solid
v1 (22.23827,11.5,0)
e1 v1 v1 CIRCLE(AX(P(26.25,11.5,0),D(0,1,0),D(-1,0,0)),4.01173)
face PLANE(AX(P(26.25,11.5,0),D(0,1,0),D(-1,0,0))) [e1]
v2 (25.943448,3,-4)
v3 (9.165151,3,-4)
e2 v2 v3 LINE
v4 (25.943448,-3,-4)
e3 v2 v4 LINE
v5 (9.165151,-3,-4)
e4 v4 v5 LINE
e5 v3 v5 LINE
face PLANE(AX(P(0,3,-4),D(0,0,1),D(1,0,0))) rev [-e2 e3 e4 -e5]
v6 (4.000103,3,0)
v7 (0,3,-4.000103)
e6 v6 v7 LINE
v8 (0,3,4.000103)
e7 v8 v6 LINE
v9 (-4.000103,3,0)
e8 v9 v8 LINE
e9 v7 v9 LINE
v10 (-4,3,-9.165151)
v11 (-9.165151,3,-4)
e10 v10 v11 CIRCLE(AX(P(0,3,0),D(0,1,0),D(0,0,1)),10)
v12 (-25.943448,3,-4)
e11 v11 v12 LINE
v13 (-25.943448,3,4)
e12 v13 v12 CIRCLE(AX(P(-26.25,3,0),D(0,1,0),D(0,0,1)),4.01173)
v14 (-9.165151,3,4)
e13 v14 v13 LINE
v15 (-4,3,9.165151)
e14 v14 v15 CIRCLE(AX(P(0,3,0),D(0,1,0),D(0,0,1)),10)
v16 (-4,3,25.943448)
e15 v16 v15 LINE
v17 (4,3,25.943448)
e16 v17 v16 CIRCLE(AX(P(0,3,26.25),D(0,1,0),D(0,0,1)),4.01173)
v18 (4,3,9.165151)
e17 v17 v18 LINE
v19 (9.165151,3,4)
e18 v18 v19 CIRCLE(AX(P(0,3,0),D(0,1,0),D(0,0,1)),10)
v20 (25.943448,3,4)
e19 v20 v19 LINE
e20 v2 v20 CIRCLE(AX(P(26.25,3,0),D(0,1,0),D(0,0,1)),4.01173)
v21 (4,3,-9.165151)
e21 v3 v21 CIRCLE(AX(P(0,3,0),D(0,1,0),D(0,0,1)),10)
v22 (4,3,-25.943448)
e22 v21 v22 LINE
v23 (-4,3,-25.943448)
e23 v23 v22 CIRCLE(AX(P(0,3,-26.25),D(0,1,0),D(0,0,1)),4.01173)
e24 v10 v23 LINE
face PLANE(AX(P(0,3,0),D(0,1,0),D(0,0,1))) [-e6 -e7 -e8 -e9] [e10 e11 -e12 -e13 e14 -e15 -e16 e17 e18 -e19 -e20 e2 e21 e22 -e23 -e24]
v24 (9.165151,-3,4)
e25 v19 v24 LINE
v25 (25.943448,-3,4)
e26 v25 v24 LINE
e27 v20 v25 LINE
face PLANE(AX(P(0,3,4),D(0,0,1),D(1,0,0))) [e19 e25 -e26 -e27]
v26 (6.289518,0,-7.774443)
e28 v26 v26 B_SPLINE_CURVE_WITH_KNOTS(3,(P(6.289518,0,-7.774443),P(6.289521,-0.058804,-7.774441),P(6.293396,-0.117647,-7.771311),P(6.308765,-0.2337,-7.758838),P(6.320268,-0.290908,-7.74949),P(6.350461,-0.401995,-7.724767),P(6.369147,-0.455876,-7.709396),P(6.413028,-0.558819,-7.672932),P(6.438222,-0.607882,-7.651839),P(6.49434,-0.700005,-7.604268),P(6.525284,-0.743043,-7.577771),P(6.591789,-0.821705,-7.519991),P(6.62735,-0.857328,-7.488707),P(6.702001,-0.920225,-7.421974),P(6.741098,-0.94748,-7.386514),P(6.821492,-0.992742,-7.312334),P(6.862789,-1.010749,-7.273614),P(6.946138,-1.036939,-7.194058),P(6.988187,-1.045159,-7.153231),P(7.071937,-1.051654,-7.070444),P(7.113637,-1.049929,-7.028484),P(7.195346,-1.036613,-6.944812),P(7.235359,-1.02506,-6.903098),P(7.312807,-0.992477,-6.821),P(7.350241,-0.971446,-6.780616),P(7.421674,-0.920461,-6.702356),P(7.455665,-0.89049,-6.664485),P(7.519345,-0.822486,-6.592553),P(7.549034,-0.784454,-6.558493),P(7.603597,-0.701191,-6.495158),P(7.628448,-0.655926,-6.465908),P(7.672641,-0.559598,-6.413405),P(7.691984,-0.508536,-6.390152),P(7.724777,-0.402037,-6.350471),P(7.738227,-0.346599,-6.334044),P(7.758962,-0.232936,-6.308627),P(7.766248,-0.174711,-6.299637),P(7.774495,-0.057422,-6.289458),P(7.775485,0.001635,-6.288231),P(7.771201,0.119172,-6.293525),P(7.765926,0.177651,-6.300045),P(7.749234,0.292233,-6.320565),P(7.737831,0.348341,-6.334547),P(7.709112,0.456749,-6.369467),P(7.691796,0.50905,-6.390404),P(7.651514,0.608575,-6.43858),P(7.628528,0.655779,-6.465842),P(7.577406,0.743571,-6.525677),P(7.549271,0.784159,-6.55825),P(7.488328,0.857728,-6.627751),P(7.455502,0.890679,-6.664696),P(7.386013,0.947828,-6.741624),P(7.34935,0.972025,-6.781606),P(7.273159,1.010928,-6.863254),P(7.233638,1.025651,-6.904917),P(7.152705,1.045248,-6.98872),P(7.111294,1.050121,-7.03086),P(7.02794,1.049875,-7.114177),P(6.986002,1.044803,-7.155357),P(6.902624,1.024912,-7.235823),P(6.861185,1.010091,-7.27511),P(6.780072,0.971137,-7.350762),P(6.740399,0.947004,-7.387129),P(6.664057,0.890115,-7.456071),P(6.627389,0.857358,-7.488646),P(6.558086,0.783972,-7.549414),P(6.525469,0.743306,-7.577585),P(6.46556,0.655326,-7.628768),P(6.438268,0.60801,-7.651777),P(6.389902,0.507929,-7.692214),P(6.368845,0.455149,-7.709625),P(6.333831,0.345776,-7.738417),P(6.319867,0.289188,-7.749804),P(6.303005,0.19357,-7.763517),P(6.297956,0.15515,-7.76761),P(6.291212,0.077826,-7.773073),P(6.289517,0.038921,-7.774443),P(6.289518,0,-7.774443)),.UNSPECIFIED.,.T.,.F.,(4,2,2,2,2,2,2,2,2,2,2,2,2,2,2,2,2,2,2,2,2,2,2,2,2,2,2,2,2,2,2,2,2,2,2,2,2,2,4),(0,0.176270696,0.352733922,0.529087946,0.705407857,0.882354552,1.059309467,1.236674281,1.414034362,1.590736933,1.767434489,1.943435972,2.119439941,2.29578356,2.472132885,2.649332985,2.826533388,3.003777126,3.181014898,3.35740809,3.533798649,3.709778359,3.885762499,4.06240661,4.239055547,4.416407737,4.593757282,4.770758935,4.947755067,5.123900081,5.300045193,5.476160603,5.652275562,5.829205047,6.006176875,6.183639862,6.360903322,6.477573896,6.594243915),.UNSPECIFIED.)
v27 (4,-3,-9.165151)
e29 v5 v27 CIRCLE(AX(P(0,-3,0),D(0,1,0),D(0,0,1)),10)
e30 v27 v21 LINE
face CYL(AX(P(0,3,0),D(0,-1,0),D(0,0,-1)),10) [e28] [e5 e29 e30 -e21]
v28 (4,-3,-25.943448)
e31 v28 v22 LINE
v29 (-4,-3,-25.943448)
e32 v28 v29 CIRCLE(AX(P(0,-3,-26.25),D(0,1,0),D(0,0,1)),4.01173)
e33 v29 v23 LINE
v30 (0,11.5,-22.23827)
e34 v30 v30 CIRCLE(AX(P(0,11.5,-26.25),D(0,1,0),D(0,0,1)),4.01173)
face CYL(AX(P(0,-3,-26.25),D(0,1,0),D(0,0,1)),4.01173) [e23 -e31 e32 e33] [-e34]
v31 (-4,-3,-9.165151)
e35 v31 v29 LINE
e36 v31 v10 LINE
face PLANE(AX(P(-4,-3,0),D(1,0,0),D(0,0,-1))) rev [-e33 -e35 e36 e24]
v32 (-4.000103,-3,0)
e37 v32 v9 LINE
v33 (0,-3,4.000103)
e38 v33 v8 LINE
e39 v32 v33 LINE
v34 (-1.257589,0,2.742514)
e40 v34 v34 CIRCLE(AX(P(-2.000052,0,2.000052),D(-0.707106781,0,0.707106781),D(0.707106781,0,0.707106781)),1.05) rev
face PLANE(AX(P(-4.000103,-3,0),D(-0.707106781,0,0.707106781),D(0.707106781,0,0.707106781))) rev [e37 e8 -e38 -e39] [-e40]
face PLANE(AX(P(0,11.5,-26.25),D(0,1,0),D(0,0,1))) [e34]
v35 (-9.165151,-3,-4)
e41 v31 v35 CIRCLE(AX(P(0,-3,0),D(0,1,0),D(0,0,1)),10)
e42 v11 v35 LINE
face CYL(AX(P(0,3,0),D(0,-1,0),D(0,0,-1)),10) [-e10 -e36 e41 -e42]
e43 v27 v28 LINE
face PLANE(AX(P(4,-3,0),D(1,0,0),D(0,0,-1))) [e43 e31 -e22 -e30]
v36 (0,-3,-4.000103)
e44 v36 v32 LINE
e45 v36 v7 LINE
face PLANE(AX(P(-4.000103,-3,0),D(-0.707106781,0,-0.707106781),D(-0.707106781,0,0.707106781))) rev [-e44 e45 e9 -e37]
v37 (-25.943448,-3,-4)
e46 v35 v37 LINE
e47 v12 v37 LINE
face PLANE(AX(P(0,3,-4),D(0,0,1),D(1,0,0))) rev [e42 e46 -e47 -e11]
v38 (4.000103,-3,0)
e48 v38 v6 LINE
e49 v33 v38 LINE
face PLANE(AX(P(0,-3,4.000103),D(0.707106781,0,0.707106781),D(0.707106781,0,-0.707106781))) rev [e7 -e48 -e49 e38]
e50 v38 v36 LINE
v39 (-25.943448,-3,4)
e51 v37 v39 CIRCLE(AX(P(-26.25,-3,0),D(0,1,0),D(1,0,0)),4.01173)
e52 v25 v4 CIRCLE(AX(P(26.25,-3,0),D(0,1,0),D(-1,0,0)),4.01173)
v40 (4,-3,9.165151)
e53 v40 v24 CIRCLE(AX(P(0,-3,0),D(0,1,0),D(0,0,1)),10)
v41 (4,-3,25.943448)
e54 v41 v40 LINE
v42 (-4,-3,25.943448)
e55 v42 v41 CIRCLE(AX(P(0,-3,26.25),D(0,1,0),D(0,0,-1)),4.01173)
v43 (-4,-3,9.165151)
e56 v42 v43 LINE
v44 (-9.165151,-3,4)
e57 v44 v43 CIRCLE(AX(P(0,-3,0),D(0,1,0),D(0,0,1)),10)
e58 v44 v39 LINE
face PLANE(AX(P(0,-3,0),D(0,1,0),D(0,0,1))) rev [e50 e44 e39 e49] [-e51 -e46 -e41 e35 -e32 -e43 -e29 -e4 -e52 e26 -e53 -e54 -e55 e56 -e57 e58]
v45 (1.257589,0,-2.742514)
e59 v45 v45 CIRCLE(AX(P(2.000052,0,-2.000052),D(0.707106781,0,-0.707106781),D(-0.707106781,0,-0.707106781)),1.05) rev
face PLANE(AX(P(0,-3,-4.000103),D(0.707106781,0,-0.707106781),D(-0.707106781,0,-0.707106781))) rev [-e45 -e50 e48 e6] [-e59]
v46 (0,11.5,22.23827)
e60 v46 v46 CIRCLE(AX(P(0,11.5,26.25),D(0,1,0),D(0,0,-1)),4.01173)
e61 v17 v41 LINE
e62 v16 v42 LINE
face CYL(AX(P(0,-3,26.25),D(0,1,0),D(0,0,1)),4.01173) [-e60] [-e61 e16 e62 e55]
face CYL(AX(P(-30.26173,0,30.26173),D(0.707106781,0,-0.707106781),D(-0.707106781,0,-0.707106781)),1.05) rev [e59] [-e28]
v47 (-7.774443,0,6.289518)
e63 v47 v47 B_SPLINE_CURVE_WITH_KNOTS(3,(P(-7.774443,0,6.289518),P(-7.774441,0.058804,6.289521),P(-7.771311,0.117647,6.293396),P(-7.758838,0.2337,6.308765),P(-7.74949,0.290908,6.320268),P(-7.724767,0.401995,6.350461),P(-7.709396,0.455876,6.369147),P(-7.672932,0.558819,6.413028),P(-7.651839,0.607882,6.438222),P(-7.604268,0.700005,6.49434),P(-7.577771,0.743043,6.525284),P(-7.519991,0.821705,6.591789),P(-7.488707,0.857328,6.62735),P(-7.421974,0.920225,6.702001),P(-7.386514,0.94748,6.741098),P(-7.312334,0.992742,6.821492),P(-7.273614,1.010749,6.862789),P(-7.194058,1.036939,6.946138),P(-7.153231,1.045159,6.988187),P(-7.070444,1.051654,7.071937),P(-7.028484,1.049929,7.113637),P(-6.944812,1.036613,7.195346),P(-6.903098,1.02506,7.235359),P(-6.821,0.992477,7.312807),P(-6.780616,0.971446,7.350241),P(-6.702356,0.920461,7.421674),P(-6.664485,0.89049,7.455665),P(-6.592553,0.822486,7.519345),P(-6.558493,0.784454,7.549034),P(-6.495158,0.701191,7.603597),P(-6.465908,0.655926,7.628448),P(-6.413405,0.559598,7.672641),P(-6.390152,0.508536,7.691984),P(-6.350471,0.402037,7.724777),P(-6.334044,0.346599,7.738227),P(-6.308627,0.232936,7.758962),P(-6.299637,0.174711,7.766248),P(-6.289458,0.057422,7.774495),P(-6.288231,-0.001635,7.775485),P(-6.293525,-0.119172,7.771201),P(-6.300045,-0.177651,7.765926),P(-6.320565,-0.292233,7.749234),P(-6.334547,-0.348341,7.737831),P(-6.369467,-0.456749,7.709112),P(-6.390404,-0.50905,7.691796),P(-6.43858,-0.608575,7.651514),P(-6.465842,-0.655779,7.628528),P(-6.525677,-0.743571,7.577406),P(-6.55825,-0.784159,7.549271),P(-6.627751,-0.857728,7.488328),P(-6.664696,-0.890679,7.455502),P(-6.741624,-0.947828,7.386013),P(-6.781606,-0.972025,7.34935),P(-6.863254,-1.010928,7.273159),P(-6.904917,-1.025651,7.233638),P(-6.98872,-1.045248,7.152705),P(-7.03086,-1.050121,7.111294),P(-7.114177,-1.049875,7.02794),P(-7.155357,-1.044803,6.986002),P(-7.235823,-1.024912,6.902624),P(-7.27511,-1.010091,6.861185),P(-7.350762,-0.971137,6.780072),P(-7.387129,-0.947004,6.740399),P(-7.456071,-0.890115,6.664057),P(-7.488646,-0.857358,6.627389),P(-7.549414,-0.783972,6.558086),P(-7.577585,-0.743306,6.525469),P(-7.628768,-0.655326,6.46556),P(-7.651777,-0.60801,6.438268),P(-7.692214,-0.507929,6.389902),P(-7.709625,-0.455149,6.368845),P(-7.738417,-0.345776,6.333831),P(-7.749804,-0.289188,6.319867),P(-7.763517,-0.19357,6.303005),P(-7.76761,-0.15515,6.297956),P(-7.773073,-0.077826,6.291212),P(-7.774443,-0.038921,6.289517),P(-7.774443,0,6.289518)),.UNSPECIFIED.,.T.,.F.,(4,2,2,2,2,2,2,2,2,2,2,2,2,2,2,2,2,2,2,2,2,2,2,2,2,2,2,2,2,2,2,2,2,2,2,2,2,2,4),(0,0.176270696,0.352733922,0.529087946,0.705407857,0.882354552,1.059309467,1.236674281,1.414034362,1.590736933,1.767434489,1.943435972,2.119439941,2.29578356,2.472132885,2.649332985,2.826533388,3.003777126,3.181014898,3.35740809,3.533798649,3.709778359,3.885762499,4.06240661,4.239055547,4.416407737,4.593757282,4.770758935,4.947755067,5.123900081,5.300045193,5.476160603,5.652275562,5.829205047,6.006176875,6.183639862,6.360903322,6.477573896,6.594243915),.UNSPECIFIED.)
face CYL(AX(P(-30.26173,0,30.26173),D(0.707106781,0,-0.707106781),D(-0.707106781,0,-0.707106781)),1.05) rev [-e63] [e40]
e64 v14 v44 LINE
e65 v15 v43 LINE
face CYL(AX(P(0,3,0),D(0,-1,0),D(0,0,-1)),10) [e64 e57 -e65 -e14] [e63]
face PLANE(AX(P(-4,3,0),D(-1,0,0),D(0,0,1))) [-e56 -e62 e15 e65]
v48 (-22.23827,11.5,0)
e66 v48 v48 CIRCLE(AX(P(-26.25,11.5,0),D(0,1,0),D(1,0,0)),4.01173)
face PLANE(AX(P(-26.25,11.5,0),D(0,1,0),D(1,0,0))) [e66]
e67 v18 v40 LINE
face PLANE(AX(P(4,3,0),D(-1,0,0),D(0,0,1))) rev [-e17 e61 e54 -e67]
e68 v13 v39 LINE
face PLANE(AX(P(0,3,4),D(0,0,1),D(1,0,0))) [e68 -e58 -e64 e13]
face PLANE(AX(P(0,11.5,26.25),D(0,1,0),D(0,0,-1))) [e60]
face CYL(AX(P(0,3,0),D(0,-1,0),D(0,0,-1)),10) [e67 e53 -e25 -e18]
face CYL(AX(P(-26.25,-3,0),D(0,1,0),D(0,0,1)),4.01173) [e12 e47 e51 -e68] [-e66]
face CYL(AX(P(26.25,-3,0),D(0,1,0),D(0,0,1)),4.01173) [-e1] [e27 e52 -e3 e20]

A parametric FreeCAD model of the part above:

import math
import FreeCAD as App
import Part
import Sketcher

V = App.Vector
Q = App.Units.Quantity

doc = App.newDocument("Part")
params = doc.addObject("Spreadsheet::Sheet", "Params")
for row, (alias, value) in enumerate([
    ("sketch1_radius", "10 mm"),
    ("sketch1_radius2", "26.25 mm"),
    ("pad1_length", "3 mm"),
    ("pad1_length2", "3 mm"),
    ("pad2_length", "14.5 mm"),
    ("sketch3_diameter", "2.1 mm"),
], start=1):
    params.set(f"A{row}", alias)
    params.set(f"B{row}", "=" + value)
    params.setAlias(f"B{row}", alias)

body = doc.addObject("PartDesign::Body", "Body")

# Sketch on XZ plane
sketch1 = doc.addObject("Sketcher::SketchObject", "Sketch")
body.addObject(sketch1)
sketch1.AttachmentSupport = (doc.XZ_Plane, [""])
sketch1.MapMode = "FlatFace"
sketch1.addGeometry([
    Part.LineSegment(V(4, 26, 0), V(4, 9, 0)),  # 0
    Part.ArcOfCircle(Part.Circle(V(0, 0, 0), V(0, 0, 1), 10), math.radians(24), math.radians(66)),  # 1
    Part.LineSegment(V(9, 4, 0), V(26, 4, 0)),  # 2
    Part.ArcOfCircle(Part.Circle(V(0, 0, 0), V(0, 0, 1), 26), math.radians(-8.76), math.radians(8.76)),  # 3
    Part.LineSegment(V(26, -4, 0), V(9, -4, 0)),  # 4
    Part.ArcOfCircle(Part.Circle(V(0, 0, 0), V(0, 0, 1), 10), math.radians(-66), math.radians(-24)),  # 5
    Part.LineSegment(V(4, -9, 0), V(4, -26, 0)),  # 6
    Part.ArcOfCircle(Part.Circle(V(0, 0, 0), V(0, 0, 1), 26), math.radians(-98.76), math.radians(-81.24)),  # 7
    Part.LineSegment(V(-4, -26, 0), V(-4, -9, 0)),  # 8
    Part.ArcOfCircle(Part.Circle(V(0, 0, 0), V(0, 0, 1), 10), math.radians(-156), math.radians(-114)),  # 9
    Part.LineSegment(V(-9, -4, 0), V(-26, -4, 0)),  # 10
    Part.ArcOfCircle(Part.Circle(V(0, 0, 0), V(0, 0, 1), 26), math.radians(171.24), math.radians(188.76)),  # 11
    Part.LineSegment(V(-26, 4, 0), V(-9, 4, 0)),  # 12
    Part.ArcOfCircle(Part.Circle(V(0, 0, 0), V(0, 0, 1), 10), math.radians(114), math.radians(156)),  # 13
    Part.LineSegment(V(-4, 9, 0), V(-4, 26, 0)),  # 14
    Part.ArcOfCircle(Part.Circle(V(0, 0, 0), V(0, 0, 1), 26), math.radians(81.24), math.radians(98.76)),  # 15
], False)
sketch1.addConstraint([
    Sketcher.Constraint("Coincident", 0, 2, 1, 2),
    Sketcher.Constraint("Coincident", 1, 1, 2, 1),
    Sketcher.Constraint("Coincident", 2, 2, 3, 2),
    Sketcher.Constraint("Coincident", 3, 1, 4, 1),
    Sketcher.Constraint("Coincident", 4, 2, 5, 2),
    Sketcher.Constraint("Coincident", 5, 1, 6, 1),
    Sketcher.Constraint("Coincident", 6, 2, 7, 2),
    Sketcher.Constraint("Coincident", 7, 1, 8, 1),
    Sketcher.Constraint("Coincident", 8, 2, 9, 2),
    Sketcher.Constraint("Coincident", 9, 1, 10, 1),
    Sketcher.Constraint("Coincident", 10, 2, 11, 2),
    Sketcher.Constraint("Coincident", 11, 1, 12, 1),
    Sketcher.Constraint("Coincident", 12, 2, 13, 2),
    Sketcher.Constraint("Coincident", 13, 1, 14, 1),
    Sketcher.Constraint("Coincident", 14, 2, 15, 2),
    Sketcher.Constraint("Coincident", 15, 1, 0, 1),
    Sketcher.Constraint("Vertical", 0),
    Sketcher.Constraint("Horizontal", 2),
    Sketcher.Constraint("Horizontal", 4),
    Sketcher.Constraint("Vertical", 6),
    Sketcher.Constraint("Vertical", 8),
    Sketcher.Constraint("Horizontal", 10),
    Sketcher.Constraint("Horizontal", 12),
    Sketcher.Constraint("Vertical", 14),
    Sketcher.Constraint("Coincident", 1, 3, -1, 1),
    Sketcher.Constraint("Coincident", 3, 3, -1, 1),
    Sketcher.Constraint("Coincident", 5, 3, -1, 1),
    Sketcher.Constraint("Coincident", 7, 3, -1, 1),
    Sketcher.Constraint("Coincident", 9, 3, -1, 1),
    Sketcher.Constraint("Coincident", 11, 3, -1, 1),
    Sketcher.Constraint("Coincident", 13, 3, -1, 1),
    Sketcher.Constraint("Coincident", 15, 3, -1, 1),
    Sketcher.Constraint("Equal", 1, 5),
    Sketcher.Constraint("Equal", 3, 7),
    Sketcher.Constraint("Equal", 5, 9),
    Sketcher.Constraint("Equal", 7, 11),
    Sketcher.Constraint("Equal", 9, 13),
    Sketcher.Constraint("Equal", 11, 15),
    Sketcher.Constraint("Horizontal", 6, 2, 7, 1),
    Sketcher.Constraint("Horizontal", 4, 2, 9, 1),
    Sketcher.Constraint("Horizontal", 2, 2, 11, 1),
    Sketcher.Constraint("Horizontal", 0, 2, 13, 1),
    Sketcher.Constraint("Vertical", 2, 2, 3, 1),
    Sketcher.Constraint("Vertical", 0, 2, 5, 1),
    Sketcher.Constraint("Equal", 12, 0),
    Sketcher.Constraint("Radius", 1, Q("10 mm")),
    Sketcher.Constraint("Radius", 3, Q("26.25 mm")),
    Sketcher.Constraint("DistanceX", -1, 1, 0, 2, Q("4 mm")),
])
sketch1.setExpression("Constraints[45]", "Params.sketch1_radius")
sketch1.setExpression("Constraints[46]", "Params.sketch1_radius2")
pad1 = doc.addObject("PartDesign::Pad", "Pad")
body.addObject(pad1)
pad1.Profile = sketch1
pad1.Type = "TwoLengths"
pad1.setExpression("Length", "Params.pad1_length")
pad1.setExpression("Length2", "Params.pad1_length2")
pad1.Reversed = True

# Sketch on XZ plane
sketch2 = doc.addObject("Sketcher::SketchObject", "Sketch001")
body.addObject(sketch2)
sketch2.AttachmentSupport = (doc.XZ_Plane, [""])
sketch2.MapMode = "FlatFace"
sketch2.AttachmentOffset = App.Placement(V(0, 0, 3), App.Rotation())
sketch2.addGeometry(Part.Circle(V(0, -26.2, 0), V(0, 0, 1), 4), False)
sketch2.addConstraint([
    Sketcher.Constraint("PointOnObject", 0, 3, -2),
    Sketcher.Constraint("Diameter", 0, Q("8.023459 mm")),
    Sketcher.Constraint("DistanceY", 0, 3, -1, 1, Q("26.25 mm")),
])
pad2 = doc.addObject("PartDesign::Pad", "Pad001")
body.addObject(pad2)
pad2.Profile = sketch2
pad2.setExpression("Length", "Params.pad2_length")
pad2.Reversed = True
doc.recompute()

polarpattern = doc.addObject("PartDesign::PolarPattern", "PolarPattern")
body.addObject(polarpattern)
polarpattern.Originals = [pad2]
polarpattern.Axis = (doc.Y_Axis, [""])
polarpattern.Angle = 360
polarpattern.Occurrences = 4
body.Tip = polarpattern

# Sketch on an angled plane
sketch3 = doc.addObject("Sketcher::SketchObject", "Sketch002")
body.addObject(sketch3)
sketch3.Placement = App.Placement(V(0, 0, 0), App.Rotation(V(-0.707106781, 0, -0.707106781), V(0, 0.999999999, 0), V(0.707106781, 0, -0.707106781), "ZXY"))
sketch3.addGeometry(Part.Circle(V(0, 0, 0), V(0, 0, 1), 1.1), False)
sketch3.addConstraint([
    Sketcher.Constraint("Coincident", 0, 3, -1, 1),
    Sketcher.Constraint("Diameter", 0, Q("2.1 mm")),
])
sketch3.setExpression("Constraints[1]", "Params.sketch3_diameter")
pocket1 = doc.addObject("PartDesign::Pocket", "Pocket")
body.addObject(pocket1)
pocket1.Profile = sketch3
pocket1.Type = "ThroughAll"
pocket1.Midplane = True

# Sketch on XZ plane
sketch4 = doc.addObject("Sketcher::SketchObject", "Sketch003")
body.addObject(sketch4)
sketch4.AttachmentSupport = (doc.XZ_Plane, [""])
sketch4.MapMode = "FlatFace"
sketch4.addGeometry([
    Part.LineSegment(V(0, -4, 0), V(-4, 0, 0)),
    Part.LineSegment(V(-4, 0, 0), V(0, 4, 0)),
    Part.LineSegment(V(0, 4, 0), V(4, 0, 0)),
    Part.LineSegment(V(4, 0, 0), V(0, -4, 0)),
], False)
sketch4.addConstraint([
    Sketcher.Constraint("Coincident", 0, 2, 1, 1),
    Sketcher.Constraint("Coincident", 1, 2, 2, 1),
    Sketcher.Constraint("Coincident", 2, 2, 3, 1),
    Sketcher.Constraint("Coincident", 3, 2, 0, 1),
    Sketcher.Constraint("Symmetric", 0, 2, 2, 2, -1, 1),
    Sketcher.Constraint("Symmetric", 1, 2, 3, 2, -1, 1),
    Sketcher.Constraint("PointOnObject", 0, 2, -1),
    Sketcher.Constraint("PointOnObject", 1, 2, -2),
    Sketcher.Constraint("Perpendicular", 0, 1),
    Sketcher.Constraint("Distance", 0, Q("5.657 mm")),
])
pocket2 = doc.addObject("PartDesign::Pocket", "Pocket001")
body.addObject(pocket2)
pocket2.Profile = sketch4
pocket2.Type = "ThroughAll"
pocket2.Midplane = True

doc.recompute()
